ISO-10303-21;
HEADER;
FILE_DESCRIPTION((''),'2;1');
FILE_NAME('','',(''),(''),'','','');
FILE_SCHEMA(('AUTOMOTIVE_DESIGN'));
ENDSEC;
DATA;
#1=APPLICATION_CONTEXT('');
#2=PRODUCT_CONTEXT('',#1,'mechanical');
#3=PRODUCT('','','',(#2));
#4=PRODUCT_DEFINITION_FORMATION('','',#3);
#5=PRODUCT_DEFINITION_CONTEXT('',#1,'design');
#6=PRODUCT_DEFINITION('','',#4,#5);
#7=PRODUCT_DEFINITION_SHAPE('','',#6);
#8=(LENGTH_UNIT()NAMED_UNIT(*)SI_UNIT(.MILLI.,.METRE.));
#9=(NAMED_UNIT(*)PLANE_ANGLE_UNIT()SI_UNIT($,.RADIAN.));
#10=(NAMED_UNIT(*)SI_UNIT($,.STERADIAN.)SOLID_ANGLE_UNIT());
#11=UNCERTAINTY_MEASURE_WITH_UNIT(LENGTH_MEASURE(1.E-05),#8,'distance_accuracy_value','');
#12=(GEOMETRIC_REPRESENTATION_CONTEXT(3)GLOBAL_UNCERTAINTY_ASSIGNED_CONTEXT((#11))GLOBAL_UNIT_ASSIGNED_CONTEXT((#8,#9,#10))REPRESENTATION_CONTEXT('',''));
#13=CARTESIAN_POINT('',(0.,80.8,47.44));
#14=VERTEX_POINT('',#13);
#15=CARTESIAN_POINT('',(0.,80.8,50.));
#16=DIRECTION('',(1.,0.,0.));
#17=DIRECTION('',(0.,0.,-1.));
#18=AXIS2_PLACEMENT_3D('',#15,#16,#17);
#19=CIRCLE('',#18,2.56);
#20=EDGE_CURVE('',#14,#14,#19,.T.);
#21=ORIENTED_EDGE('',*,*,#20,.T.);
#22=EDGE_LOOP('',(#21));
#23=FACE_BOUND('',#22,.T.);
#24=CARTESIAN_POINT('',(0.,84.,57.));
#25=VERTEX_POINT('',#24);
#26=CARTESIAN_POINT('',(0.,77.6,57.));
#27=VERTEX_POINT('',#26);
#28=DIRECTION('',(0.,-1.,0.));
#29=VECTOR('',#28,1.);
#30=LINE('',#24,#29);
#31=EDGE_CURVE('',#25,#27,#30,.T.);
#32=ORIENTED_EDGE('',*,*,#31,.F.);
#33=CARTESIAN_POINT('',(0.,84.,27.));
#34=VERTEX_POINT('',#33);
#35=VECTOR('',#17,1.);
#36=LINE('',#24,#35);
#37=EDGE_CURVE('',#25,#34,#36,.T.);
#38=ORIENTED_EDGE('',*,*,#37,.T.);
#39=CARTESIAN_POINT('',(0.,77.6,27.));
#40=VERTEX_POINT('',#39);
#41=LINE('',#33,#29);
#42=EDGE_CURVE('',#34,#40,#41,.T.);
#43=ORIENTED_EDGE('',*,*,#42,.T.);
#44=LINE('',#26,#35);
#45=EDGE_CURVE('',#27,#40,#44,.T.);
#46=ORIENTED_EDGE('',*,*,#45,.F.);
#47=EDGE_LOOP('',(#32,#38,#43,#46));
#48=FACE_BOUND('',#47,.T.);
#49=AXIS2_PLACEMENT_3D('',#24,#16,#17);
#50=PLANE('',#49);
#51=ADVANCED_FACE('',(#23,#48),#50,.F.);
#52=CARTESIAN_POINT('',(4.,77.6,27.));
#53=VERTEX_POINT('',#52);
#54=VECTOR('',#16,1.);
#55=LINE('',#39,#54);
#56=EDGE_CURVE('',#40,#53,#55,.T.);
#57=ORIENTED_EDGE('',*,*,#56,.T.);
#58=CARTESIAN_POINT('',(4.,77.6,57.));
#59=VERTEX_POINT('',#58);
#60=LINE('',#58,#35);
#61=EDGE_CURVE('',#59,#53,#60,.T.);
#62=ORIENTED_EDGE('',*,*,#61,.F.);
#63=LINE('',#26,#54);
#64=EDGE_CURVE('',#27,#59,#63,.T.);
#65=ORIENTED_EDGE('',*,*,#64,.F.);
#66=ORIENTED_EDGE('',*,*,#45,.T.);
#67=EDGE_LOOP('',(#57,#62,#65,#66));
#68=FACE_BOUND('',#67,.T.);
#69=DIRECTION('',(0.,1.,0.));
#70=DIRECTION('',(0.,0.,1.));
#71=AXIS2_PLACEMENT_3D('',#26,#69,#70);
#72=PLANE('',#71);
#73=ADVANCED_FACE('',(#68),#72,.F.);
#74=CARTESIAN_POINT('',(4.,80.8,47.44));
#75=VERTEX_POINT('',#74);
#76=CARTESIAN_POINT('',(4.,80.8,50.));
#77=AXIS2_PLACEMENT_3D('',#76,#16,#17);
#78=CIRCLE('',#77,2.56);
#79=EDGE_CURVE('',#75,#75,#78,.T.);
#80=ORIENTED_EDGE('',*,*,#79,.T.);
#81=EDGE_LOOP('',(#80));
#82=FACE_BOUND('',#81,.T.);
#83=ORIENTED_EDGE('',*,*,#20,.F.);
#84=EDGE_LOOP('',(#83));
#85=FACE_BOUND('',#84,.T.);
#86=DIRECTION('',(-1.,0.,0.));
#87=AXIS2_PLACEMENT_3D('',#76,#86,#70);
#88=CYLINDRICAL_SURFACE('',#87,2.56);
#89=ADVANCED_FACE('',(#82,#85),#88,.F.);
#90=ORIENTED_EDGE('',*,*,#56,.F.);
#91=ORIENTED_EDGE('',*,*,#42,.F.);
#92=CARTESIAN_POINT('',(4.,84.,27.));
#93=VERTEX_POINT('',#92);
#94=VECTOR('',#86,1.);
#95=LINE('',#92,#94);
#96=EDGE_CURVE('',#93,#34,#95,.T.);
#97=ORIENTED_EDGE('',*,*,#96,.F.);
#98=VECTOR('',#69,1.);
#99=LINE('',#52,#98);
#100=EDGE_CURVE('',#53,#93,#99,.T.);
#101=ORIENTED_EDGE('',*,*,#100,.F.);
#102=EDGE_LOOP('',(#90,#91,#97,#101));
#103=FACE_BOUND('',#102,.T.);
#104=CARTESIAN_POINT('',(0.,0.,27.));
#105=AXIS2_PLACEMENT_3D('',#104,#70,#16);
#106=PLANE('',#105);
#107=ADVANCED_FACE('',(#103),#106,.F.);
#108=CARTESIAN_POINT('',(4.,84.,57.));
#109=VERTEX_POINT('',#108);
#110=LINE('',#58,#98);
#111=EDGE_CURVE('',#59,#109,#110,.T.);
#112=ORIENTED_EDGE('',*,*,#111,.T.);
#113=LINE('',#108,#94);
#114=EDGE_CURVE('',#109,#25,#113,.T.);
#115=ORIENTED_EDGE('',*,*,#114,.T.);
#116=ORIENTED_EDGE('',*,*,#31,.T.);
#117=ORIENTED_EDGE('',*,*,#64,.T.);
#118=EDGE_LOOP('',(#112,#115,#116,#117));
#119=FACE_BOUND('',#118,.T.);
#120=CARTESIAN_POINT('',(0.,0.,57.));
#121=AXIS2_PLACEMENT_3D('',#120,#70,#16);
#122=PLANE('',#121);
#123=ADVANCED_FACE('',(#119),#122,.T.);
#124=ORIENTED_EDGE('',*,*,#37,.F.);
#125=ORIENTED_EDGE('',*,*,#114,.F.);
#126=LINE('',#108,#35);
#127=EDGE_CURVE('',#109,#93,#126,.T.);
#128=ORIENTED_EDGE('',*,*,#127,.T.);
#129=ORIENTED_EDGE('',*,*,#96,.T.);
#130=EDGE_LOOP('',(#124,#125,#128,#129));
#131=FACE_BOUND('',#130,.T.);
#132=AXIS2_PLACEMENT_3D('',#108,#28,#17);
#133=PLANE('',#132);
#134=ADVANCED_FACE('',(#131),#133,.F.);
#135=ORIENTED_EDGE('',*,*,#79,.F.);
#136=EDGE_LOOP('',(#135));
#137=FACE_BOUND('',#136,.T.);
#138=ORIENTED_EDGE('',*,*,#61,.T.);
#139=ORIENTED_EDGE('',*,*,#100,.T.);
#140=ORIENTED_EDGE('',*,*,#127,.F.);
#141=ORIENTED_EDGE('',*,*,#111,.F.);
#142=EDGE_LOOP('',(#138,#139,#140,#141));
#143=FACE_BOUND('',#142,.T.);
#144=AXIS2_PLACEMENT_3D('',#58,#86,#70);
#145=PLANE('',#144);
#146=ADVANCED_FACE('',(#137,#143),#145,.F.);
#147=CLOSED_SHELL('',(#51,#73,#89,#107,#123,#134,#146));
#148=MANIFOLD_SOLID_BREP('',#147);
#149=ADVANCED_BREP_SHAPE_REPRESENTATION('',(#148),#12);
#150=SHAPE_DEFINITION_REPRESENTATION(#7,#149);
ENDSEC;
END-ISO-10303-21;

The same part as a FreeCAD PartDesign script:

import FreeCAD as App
import Part
import Sketcher
from FreeCAD import Vector

doc = App.newDocument("Part")
params = doc.addObject("Spreadsheet::Sheet", "Params")
for row, (alias, value) in enumerate([
    ("sketch1_width", "4 mm"),
    ("sketch1_height", "6.4 mm"),
    ("pad1_length", "30 mm"),
    ("sketch2_diameter", "5.12 mm"),
    ("pocket1_length", "4 mm"),
], start=1):
    params.set(f"A{row}", alias)
    params.set(f"B{row}", "=" + value)
    params.setAlias(f"B{row}", alias)

body = doc.addObject("PartDesign::Body", "Body")

sketch1 = body.newObject("Sketcher::SketchObject", "Sketch")
sketch1.AttachmentSupport = (doc.getObject("XY_Plane"), [""])
sketch1.MapMode = "FlatFace"
sketch1.AttachmentOffset = App.Placement(Vector(0, 0, 27), App.Rotation())
sketch1.addGeometry([
    Part.LineSegment(Vector(0, 84, 0), Vector(0, 77.6, 0)),
    Part.LineSegment(Vector(0, 77.6, 0), Vector(4, 77.6, 0)),
    Part.LineSegment(Vector(4, 77.6, 0), Vector(4, 84, 0)),
    Part.LineSegment(Vector(4, 84, 0), Vector(0, 84, 0)),
], False)
sketch1.addConstraint([
    Sketcher.Constraint("Coincident", 0, 2, 1, 1),
    Sketcher.Constraint("Coincident", 1, 2, 2, 1),
    Sketcher.Constraint("Coincident", 2, 2, 3, 1),
    Sketcher.Constraint("Coincident", 3, 2, 0, 1),
    Sketcher.Constraint("Vertical", 0),
    Sketcher.Constraint("Horizontal", 1),
    Sketcher.Constraint("Vertical", 2),
    Sketcher.Constraint("Horizontal", 3),
    Sketcher.Constraint("PointOnObject", 0, 2, -2),
    Sketcher.Constraint("DistanceX", 1, 1, 1, 2, 4.0),
    Sketcher.Constraint("DistanceY", 0, 2, 0, 1, 6.4),
    Sketcher.Constraint("DistanceY", -1, 1, 2, 2, 84.0),
])
sketch1.setExpression("Constraints[9]", "Params.sketch1_width")
sketch1.setExpression("Constraints[10]", "Params.sketch1_height")
pad1 = body.newObject("PartDesign::Pad", "Pad")
pad1.Profile = sketch1
pad1.setExpression("Length", "Params.pad1_length")

sketch2 = body.newObject("Sketcher::SketchObject", "Sketch001")
sketch2.AttachmentSupport = (doc.getObject("YZ_Plane"), [""])
sketch2.MapMode = "FlatFace"
sketch2.addGeometry(Part.Circle(Vector(80.8, 50, 0), Vector(0, 0, 1), 2.6), False)
sketch2.addConstraint([
    Sketcher.Constraint("Diameter", 0, 5.12),
    Sketcher.Constraint("DistanceY", -1, 1, 0, 3, 50.0),
    Sketcher.Constraint("DistanceX", -1, 1, 0, 3, 80.8),
])
sketch2.setExpression("Constraints[0]", "Params.sketch2_diameter")
pocket1 = body.newObject("PartDesign::Pocket", "Pocket")
pocket1.Profile = sketch2
pocket1.setExpression("Length", "Params.pocket1_length")
pocket1.Reversed = True

doc.recompute()
